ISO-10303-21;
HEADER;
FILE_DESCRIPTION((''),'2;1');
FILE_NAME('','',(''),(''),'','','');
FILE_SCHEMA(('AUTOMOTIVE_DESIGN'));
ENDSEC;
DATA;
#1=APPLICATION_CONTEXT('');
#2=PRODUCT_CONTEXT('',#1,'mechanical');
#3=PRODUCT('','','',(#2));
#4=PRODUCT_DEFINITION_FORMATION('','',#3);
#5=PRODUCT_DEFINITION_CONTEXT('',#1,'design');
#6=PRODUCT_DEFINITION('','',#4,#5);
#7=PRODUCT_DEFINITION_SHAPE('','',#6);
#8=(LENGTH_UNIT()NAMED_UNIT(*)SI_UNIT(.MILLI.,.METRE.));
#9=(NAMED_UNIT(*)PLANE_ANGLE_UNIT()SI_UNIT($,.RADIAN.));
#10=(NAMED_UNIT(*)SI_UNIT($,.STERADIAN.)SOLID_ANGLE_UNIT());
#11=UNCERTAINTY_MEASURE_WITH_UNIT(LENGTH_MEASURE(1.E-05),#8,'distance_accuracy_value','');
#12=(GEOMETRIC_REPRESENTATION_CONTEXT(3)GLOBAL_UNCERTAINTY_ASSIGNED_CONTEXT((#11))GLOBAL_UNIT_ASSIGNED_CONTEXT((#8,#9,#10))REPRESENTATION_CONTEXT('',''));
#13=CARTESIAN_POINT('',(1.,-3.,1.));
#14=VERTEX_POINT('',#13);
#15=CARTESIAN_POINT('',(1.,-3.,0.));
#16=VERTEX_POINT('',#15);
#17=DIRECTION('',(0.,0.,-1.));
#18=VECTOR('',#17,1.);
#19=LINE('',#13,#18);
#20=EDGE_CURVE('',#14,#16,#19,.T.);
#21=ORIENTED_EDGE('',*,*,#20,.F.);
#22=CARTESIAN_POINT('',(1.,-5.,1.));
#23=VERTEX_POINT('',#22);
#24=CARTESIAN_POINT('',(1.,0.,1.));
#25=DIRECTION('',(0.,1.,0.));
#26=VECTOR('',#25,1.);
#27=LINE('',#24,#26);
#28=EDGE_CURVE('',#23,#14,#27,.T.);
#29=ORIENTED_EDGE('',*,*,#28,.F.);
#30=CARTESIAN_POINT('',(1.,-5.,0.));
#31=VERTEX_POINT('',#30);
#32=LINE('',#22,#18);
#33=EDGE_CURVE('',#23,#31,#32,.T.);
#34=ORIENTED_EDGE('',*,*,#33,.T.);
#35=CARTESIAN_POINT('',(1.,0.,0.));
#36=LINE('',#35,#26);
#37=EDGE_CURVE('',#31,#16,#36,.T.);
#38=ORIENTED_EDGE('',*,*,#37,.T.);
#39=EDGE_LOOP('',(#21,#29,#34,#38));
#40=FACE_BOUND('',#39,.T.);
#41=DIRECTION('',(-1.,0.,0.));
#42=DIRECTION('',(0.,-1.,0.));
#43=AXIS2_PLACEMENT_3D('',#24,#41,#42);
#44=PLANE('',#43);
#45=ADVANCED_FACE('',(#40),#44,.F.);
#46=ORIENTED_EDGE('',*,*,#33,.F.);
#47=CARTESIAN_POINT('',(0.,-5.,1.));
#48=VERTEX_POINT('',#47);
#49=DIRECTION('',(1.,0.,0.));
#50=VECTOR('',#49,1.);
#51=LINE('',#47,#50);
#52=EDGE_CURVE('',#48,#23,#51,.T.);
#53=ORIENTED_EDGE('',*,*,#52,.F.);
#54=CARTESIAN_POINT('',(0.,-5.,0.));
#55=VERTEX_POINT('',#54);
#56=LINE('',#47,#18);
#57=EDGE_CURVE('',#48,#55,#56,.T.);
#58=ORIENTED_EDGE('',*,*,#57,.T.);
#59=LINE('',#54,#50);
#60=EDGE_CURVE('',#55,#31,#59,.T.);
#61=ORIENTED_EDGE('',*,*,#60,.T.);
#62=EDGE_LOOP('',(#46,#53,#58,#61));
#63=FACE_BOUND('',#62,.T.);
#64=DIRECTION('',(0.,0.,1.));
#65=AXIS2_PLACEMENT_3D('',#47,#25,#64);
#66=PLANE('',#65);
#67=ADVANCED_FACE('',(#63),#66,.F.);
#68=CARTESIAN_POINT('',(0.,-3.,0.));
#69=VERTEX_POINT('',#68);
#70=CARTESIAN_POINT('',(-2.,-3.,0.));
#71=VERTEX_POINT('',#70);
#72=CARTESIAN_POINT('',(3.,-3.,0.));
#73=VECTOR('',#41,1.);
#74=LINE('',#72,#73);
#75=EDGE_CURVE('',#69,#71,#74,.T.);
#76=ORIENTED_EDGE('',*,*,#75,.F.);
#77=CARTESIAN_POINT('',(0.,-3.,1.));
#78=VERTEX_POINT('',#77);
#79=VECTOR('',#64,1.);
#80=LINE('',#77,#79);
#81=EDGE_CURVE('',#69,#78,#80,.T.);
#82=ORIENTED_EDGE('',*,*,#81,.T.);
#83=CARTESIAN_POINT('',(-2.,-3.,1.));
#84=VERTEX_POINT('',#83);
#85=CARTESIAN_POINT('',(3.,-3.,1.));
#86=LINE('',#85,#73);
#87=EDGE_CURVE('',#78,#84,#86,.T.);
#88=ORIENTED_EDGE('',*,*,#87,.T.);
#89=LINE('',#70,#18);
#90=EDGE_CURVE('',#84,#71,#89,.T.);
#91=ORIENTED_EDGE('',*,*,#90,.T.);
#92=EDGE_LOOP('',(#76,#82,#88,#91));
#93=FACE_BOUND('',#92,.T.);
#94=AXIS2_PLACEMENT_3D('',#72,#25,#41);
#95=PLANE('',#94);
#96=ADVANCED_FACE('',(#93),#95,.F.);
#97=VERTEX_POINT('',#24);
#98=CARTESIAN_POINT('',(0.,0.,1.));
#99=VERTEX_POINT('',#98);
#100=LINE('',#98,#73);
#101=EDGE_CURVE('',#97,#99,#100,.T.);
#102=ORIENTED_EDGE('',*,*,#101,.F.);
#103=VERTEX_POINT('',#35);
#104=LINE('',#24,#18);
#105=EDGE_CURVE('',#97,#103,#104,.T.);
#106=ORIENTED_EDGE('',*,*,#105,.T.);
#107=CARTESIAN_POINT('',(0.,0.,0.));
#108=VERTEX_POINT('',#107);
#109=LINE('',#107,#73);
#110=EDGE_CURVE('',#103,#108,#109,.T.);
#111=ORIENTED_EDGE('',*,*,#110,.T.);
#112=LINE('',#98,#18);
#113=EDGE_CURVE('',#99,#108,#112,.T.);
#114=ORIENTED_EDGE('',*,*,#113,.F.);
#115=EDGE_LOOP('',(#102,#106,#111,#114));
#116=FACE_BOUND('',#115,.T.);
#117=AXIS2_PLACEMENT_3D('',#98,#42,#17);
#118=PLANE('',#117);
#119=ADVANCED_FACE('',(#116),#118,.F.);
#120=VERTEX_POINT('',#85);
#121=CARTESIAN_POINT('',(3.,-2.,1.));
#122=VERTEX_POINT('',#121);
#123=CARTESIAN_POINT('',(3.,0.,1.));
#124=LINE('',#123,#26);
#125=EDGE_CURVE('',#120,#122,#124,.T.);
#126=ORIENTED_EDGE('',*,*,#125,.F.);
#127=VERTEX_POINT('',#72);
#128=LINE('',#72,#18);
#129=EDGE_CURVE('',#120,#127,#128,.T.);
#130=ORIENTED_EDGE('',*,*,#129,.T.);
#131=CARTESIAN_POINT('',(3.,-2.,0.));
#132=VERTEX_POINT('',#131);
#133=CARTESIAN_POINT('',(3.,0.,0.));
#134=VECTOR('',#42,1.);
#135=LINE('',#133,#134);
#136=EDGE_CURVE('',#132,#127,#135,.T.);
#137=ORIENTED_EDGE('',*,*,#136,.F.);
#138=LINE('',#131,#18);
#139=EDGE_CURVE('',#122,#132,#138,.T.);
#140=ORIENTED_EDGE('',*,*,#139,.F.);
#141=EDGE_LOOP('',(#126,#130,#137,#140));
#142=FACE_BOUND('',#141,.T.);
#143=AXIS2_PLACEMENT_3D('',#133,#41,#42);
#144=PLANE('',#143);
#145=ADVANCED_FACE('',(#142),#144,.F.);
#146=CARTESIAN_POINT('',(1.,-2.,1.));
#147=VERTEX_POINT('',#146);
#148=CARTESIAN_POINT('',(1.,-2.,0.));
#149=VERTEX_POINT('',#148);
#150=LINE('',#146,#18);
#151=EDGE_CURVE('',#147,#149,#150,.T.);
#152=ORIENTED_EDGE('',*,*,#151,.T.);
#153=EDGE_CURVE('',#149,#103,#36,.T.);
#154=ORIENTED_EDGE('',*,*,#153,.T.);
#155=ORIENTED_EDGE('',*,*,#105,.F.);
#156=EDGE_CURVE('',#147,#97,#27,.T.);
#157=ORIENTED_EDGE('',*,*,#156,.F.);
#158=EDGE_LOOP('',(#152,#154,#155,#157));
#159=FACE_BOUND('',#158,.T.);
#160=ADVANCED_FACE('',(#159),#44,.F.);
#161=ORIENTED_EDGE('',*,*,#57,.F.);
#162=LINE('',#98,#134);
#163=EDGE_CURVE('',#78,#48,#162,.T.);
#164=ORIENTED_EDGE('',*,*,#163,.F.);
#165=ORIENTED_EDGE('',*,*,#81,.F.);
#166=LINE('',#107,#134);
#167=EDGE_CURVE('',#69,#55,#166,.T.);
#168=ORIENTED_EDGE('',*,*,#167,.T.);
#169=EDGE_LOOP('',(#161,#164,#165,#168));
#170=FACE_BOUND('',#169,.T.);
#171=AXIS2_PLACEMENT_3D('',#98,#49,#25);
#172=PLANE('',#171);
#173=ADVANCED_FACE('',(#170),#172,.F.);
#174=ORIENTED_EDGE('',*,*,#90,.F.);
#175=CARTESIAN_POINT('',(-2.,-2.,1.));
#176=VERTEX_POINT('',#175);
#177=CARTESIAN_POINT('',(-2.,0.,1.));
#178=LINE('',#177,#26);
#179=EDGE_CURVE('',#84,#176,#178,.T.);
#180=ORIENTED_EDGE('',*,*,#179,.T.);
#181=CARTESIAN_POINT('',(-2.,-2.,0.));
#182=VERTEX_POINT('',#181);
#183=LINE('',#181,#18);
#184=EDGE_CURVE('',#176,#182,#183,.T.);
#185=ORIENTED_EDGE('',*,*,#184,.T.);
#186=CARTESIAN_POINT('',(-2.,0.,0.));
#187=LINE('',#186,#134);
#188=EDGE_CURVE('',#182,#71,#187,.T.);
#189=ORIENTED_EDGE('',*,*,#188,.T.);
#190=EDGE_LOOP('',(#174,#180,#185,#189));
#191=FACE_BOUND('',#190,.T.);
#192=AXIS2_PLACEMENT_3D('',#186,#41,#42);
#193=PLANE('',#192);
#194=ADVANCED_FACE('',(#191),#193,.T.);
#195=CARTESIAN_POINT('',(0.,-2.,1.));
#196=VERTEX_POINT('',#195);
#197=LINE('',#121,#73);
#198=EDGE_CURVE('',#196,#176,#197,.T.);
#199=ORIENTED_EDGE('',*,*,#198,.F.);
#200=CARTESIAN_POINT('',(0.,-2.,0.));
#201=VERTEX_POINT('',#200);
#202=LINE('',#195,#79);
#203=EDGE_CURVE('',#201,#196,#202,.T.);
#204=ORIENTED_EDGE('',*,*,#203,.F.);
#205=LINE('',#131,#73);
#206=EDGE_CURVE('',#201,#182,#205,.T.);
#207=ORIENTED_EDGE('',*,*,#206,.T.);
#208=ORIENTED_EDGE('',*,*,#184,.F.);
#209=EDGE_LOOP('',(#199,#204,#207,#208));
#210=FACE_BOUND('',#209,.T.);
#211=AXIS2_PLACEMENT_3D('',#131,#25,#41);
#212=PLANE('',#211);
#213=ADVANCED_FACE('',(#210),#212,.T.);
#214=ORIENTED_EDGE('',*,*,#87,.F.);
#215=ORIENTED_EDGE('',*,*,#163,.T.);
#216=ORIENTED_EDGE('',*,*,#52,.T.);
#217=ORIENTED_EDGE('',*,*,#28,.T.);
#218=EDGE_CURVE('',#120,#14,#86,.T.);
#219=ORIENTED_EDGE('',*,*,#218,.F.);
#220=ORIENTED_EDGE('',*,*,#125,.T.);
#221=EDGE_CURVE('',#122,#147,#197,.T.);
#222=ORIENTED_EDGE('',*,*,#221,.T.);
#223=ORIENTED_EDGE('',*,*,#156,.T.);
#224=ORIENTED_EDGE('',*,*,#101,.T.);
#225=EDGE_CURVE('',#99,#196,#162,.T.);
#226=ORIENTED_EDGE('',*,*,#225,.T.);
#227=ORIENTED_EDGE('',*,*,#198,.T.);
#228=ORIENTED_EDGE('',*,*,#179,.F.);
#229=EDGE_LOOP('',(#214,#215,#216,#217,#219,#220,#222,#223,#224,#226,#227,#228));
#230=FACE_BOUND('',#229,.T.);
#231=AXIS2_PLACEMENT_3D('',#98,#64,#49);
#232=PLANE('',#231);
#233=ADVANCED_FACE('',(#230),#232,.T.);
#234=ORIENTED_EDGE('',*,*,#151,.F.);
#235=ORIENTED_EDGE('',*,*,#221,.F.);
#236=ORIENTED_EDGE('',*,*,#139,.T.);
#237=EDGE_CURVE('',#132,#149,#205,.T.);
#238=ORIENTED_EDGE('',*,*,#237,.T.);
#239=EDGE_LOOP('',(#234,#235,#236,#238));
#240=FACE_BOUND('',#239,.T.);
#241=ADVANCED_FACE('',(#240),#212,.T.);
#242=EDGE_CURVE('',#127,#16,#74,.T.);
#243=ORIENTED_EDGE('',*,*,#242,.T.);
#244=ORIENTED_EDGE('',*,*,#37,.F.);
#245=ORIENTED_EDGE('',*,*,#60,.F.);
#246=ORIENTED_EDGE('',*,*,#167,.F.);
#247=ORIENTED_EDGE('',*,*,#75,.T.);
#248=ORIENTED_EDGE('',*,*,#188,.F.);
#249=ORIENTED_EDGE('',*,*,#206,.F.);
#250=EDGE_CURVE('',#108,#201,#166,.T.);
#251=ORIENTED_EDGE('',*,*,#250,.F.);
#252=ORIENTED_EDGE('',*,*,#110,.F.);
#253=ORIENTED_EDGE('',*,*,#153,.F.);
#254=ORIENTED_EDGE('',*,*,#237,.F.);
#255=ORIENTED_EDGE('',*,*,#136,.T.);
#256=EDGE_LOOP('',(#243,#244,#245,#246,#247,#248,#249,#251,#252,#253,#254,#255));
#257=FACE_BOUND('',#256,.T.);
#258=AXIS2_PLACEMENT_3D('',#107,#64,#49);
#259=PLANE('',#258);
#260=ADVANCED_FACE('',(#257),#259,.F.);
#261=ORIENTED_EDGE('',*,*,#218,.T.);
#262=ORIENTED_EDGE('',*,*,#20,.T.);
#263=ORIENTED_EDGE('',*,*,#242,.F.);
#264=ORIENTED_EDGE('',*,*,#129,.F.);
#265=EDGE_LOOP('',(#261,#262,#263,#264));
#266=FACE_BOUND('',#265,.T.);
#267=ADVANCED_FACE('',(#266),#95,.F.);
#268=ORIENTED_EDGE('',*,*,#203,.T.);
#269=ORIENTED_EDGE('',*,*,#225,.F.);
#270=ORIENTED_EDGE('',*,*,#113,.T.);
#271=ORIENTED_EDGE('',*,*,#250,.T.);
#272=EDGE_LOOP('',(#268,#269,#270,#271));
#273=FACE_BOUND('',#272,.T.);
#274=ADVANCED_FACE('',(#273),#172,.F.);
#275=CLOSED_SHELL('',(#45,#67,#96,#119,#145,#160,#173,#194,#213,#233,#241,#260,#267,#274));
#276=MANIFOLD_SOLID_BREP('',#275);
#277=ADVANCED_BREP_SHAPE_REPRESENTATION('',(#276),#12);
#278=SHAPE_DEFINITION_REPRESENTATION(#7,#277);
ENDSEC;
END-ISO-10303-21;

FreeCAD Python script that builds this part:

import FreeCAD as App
import Part
import Sketcher


def add_polygon(sketch, points):
    """Adds a closed chain of lines whose ends are joined by coincident constraints."""
    first, n = sketch.GeometryCount, len(points)
    for a, b in zip(points, points[1:] + points[:1]):
        sketch.addGeometry(Part.LineSegment(App.Vector(*a, 0), App.Vector(*b, 0)), False)
    for i in range(n):
        sketch.addConstraint(Sketcher.Constraint("Coincident", first + i, 2, first + (i + 1) % n, 1))

doc = App.newDocument("Part")
body = doc.addObject("PartDesign::Body", "Body")

sketch1 = body.newObject("Sketcher::SketchObject", "Sketch")
sketch1.AttachmentSupport = (doc.getObject("XY_Plane"), [""])
sketch1.MapMode = "FlatFace"
add_polygon(sketch1, [(0, 0), (0, -5), (1, -5), (1, 0)])
sketch1.addConstraint(Sketcher.Constraint("Vertical", 0))
sketch1.addConstraint(Sketcher.Constraint("Horizontal", 1))
sketch1.addConstraint(Sketcher.Constraint("Vertical", 2))
sketch1.addConstraint(Sketcher.Constraint("Horizontal", 3))
sketch1.addConstraint(Sketcher.Constraint("Coincident", 3, 2, -1, 1))
sketch1.addConstraint(Sketcher.Constraint("DistanceX", 1, 1, 1, 2, 1.0))
sketch1.addConstraint(Sketcher.Constraint("DistanceY", 0, 2, 0, 1, 5.0))
pad1 = body.newObject("PartDesign::Pad", "Pad")
pad1.Profile = sketch1
pad1.Length = 1

sketch2 = body.newObject("Sketcher::SketchObject", "Sketch001")
sketch2.AttachmentSupport = (doc.getObject("YZ_Plane"), [""])
sketch2.MapMode = "FlatFace"
sketch2.AttachmentOffset = App.Placement(App.Vector(0, 0, 1), App.Rotation())
sketch2.addGeometry(Part.Circle(App.Vector(-2.5, 0.5, 0), App.Vector(0, 0, 1), 0.228902), False)
sketch2.addConstraint(Sketcher.Constraint("DistanceX", 0, 3, -1, 1, 2.5))
sketch2.addConstraint(Sketcher.Constraint("DistanceY", -1, 1, 0, 3, 0.5))
sketch2.addConstraint(Sketcher.Constraint("Diameter", 0, 0.457804))
pad2 = body.newObject("PartDesign::Pad", "Pad001")
pad2.Profile = sketch2
pad2.Length = 0.01

sketch3 = body.newObject("Sketcher::SketchObject", "Sketch002")
sketch3.AttachmentSupport = (doc.getObject("YZ_Plane"), [""])
sketch3.MapMode = "FlatFace"
add_polygon(sketch3, [(-3, 1), (-2, 1), (-2, 0), (-3, 0)])
sketch3.addConstraint(Sketcher.Constraint("Horizontal", 0))
sketch3.addConstraint(Sketcher.Constraint("Vertical", 1))
sketch3.addConstraint(Sketcher.Constraint("Horizontal", 2))
sketch3.addConstraint(Sketcher.Constraint("Vertical", 3))
sketch3.addConstraint(Sketcher.Constraint("PointOnObject", 1, 2, -1))
sketch3.addConstraint(Sketcher.Constraint("Equal", 2, 1))
sketch3.addConstraint(Sketcher.Constraint("DistanceX", 0, 1, 0, 2, 1.0))
sketch3.addConstraint(Sketcher.Constraint("DistanceX", 0, 2, -1, 1, 2.0))
pad3 = body.newObject("PartDesign::Pad", "Pad002")
pad3.Profile = sketch3
pad3.Type = "TwoLengths"
pad3.Length = 2
pad3.Length2 = 3
pad3.Reversed = True

doc.recompute()
